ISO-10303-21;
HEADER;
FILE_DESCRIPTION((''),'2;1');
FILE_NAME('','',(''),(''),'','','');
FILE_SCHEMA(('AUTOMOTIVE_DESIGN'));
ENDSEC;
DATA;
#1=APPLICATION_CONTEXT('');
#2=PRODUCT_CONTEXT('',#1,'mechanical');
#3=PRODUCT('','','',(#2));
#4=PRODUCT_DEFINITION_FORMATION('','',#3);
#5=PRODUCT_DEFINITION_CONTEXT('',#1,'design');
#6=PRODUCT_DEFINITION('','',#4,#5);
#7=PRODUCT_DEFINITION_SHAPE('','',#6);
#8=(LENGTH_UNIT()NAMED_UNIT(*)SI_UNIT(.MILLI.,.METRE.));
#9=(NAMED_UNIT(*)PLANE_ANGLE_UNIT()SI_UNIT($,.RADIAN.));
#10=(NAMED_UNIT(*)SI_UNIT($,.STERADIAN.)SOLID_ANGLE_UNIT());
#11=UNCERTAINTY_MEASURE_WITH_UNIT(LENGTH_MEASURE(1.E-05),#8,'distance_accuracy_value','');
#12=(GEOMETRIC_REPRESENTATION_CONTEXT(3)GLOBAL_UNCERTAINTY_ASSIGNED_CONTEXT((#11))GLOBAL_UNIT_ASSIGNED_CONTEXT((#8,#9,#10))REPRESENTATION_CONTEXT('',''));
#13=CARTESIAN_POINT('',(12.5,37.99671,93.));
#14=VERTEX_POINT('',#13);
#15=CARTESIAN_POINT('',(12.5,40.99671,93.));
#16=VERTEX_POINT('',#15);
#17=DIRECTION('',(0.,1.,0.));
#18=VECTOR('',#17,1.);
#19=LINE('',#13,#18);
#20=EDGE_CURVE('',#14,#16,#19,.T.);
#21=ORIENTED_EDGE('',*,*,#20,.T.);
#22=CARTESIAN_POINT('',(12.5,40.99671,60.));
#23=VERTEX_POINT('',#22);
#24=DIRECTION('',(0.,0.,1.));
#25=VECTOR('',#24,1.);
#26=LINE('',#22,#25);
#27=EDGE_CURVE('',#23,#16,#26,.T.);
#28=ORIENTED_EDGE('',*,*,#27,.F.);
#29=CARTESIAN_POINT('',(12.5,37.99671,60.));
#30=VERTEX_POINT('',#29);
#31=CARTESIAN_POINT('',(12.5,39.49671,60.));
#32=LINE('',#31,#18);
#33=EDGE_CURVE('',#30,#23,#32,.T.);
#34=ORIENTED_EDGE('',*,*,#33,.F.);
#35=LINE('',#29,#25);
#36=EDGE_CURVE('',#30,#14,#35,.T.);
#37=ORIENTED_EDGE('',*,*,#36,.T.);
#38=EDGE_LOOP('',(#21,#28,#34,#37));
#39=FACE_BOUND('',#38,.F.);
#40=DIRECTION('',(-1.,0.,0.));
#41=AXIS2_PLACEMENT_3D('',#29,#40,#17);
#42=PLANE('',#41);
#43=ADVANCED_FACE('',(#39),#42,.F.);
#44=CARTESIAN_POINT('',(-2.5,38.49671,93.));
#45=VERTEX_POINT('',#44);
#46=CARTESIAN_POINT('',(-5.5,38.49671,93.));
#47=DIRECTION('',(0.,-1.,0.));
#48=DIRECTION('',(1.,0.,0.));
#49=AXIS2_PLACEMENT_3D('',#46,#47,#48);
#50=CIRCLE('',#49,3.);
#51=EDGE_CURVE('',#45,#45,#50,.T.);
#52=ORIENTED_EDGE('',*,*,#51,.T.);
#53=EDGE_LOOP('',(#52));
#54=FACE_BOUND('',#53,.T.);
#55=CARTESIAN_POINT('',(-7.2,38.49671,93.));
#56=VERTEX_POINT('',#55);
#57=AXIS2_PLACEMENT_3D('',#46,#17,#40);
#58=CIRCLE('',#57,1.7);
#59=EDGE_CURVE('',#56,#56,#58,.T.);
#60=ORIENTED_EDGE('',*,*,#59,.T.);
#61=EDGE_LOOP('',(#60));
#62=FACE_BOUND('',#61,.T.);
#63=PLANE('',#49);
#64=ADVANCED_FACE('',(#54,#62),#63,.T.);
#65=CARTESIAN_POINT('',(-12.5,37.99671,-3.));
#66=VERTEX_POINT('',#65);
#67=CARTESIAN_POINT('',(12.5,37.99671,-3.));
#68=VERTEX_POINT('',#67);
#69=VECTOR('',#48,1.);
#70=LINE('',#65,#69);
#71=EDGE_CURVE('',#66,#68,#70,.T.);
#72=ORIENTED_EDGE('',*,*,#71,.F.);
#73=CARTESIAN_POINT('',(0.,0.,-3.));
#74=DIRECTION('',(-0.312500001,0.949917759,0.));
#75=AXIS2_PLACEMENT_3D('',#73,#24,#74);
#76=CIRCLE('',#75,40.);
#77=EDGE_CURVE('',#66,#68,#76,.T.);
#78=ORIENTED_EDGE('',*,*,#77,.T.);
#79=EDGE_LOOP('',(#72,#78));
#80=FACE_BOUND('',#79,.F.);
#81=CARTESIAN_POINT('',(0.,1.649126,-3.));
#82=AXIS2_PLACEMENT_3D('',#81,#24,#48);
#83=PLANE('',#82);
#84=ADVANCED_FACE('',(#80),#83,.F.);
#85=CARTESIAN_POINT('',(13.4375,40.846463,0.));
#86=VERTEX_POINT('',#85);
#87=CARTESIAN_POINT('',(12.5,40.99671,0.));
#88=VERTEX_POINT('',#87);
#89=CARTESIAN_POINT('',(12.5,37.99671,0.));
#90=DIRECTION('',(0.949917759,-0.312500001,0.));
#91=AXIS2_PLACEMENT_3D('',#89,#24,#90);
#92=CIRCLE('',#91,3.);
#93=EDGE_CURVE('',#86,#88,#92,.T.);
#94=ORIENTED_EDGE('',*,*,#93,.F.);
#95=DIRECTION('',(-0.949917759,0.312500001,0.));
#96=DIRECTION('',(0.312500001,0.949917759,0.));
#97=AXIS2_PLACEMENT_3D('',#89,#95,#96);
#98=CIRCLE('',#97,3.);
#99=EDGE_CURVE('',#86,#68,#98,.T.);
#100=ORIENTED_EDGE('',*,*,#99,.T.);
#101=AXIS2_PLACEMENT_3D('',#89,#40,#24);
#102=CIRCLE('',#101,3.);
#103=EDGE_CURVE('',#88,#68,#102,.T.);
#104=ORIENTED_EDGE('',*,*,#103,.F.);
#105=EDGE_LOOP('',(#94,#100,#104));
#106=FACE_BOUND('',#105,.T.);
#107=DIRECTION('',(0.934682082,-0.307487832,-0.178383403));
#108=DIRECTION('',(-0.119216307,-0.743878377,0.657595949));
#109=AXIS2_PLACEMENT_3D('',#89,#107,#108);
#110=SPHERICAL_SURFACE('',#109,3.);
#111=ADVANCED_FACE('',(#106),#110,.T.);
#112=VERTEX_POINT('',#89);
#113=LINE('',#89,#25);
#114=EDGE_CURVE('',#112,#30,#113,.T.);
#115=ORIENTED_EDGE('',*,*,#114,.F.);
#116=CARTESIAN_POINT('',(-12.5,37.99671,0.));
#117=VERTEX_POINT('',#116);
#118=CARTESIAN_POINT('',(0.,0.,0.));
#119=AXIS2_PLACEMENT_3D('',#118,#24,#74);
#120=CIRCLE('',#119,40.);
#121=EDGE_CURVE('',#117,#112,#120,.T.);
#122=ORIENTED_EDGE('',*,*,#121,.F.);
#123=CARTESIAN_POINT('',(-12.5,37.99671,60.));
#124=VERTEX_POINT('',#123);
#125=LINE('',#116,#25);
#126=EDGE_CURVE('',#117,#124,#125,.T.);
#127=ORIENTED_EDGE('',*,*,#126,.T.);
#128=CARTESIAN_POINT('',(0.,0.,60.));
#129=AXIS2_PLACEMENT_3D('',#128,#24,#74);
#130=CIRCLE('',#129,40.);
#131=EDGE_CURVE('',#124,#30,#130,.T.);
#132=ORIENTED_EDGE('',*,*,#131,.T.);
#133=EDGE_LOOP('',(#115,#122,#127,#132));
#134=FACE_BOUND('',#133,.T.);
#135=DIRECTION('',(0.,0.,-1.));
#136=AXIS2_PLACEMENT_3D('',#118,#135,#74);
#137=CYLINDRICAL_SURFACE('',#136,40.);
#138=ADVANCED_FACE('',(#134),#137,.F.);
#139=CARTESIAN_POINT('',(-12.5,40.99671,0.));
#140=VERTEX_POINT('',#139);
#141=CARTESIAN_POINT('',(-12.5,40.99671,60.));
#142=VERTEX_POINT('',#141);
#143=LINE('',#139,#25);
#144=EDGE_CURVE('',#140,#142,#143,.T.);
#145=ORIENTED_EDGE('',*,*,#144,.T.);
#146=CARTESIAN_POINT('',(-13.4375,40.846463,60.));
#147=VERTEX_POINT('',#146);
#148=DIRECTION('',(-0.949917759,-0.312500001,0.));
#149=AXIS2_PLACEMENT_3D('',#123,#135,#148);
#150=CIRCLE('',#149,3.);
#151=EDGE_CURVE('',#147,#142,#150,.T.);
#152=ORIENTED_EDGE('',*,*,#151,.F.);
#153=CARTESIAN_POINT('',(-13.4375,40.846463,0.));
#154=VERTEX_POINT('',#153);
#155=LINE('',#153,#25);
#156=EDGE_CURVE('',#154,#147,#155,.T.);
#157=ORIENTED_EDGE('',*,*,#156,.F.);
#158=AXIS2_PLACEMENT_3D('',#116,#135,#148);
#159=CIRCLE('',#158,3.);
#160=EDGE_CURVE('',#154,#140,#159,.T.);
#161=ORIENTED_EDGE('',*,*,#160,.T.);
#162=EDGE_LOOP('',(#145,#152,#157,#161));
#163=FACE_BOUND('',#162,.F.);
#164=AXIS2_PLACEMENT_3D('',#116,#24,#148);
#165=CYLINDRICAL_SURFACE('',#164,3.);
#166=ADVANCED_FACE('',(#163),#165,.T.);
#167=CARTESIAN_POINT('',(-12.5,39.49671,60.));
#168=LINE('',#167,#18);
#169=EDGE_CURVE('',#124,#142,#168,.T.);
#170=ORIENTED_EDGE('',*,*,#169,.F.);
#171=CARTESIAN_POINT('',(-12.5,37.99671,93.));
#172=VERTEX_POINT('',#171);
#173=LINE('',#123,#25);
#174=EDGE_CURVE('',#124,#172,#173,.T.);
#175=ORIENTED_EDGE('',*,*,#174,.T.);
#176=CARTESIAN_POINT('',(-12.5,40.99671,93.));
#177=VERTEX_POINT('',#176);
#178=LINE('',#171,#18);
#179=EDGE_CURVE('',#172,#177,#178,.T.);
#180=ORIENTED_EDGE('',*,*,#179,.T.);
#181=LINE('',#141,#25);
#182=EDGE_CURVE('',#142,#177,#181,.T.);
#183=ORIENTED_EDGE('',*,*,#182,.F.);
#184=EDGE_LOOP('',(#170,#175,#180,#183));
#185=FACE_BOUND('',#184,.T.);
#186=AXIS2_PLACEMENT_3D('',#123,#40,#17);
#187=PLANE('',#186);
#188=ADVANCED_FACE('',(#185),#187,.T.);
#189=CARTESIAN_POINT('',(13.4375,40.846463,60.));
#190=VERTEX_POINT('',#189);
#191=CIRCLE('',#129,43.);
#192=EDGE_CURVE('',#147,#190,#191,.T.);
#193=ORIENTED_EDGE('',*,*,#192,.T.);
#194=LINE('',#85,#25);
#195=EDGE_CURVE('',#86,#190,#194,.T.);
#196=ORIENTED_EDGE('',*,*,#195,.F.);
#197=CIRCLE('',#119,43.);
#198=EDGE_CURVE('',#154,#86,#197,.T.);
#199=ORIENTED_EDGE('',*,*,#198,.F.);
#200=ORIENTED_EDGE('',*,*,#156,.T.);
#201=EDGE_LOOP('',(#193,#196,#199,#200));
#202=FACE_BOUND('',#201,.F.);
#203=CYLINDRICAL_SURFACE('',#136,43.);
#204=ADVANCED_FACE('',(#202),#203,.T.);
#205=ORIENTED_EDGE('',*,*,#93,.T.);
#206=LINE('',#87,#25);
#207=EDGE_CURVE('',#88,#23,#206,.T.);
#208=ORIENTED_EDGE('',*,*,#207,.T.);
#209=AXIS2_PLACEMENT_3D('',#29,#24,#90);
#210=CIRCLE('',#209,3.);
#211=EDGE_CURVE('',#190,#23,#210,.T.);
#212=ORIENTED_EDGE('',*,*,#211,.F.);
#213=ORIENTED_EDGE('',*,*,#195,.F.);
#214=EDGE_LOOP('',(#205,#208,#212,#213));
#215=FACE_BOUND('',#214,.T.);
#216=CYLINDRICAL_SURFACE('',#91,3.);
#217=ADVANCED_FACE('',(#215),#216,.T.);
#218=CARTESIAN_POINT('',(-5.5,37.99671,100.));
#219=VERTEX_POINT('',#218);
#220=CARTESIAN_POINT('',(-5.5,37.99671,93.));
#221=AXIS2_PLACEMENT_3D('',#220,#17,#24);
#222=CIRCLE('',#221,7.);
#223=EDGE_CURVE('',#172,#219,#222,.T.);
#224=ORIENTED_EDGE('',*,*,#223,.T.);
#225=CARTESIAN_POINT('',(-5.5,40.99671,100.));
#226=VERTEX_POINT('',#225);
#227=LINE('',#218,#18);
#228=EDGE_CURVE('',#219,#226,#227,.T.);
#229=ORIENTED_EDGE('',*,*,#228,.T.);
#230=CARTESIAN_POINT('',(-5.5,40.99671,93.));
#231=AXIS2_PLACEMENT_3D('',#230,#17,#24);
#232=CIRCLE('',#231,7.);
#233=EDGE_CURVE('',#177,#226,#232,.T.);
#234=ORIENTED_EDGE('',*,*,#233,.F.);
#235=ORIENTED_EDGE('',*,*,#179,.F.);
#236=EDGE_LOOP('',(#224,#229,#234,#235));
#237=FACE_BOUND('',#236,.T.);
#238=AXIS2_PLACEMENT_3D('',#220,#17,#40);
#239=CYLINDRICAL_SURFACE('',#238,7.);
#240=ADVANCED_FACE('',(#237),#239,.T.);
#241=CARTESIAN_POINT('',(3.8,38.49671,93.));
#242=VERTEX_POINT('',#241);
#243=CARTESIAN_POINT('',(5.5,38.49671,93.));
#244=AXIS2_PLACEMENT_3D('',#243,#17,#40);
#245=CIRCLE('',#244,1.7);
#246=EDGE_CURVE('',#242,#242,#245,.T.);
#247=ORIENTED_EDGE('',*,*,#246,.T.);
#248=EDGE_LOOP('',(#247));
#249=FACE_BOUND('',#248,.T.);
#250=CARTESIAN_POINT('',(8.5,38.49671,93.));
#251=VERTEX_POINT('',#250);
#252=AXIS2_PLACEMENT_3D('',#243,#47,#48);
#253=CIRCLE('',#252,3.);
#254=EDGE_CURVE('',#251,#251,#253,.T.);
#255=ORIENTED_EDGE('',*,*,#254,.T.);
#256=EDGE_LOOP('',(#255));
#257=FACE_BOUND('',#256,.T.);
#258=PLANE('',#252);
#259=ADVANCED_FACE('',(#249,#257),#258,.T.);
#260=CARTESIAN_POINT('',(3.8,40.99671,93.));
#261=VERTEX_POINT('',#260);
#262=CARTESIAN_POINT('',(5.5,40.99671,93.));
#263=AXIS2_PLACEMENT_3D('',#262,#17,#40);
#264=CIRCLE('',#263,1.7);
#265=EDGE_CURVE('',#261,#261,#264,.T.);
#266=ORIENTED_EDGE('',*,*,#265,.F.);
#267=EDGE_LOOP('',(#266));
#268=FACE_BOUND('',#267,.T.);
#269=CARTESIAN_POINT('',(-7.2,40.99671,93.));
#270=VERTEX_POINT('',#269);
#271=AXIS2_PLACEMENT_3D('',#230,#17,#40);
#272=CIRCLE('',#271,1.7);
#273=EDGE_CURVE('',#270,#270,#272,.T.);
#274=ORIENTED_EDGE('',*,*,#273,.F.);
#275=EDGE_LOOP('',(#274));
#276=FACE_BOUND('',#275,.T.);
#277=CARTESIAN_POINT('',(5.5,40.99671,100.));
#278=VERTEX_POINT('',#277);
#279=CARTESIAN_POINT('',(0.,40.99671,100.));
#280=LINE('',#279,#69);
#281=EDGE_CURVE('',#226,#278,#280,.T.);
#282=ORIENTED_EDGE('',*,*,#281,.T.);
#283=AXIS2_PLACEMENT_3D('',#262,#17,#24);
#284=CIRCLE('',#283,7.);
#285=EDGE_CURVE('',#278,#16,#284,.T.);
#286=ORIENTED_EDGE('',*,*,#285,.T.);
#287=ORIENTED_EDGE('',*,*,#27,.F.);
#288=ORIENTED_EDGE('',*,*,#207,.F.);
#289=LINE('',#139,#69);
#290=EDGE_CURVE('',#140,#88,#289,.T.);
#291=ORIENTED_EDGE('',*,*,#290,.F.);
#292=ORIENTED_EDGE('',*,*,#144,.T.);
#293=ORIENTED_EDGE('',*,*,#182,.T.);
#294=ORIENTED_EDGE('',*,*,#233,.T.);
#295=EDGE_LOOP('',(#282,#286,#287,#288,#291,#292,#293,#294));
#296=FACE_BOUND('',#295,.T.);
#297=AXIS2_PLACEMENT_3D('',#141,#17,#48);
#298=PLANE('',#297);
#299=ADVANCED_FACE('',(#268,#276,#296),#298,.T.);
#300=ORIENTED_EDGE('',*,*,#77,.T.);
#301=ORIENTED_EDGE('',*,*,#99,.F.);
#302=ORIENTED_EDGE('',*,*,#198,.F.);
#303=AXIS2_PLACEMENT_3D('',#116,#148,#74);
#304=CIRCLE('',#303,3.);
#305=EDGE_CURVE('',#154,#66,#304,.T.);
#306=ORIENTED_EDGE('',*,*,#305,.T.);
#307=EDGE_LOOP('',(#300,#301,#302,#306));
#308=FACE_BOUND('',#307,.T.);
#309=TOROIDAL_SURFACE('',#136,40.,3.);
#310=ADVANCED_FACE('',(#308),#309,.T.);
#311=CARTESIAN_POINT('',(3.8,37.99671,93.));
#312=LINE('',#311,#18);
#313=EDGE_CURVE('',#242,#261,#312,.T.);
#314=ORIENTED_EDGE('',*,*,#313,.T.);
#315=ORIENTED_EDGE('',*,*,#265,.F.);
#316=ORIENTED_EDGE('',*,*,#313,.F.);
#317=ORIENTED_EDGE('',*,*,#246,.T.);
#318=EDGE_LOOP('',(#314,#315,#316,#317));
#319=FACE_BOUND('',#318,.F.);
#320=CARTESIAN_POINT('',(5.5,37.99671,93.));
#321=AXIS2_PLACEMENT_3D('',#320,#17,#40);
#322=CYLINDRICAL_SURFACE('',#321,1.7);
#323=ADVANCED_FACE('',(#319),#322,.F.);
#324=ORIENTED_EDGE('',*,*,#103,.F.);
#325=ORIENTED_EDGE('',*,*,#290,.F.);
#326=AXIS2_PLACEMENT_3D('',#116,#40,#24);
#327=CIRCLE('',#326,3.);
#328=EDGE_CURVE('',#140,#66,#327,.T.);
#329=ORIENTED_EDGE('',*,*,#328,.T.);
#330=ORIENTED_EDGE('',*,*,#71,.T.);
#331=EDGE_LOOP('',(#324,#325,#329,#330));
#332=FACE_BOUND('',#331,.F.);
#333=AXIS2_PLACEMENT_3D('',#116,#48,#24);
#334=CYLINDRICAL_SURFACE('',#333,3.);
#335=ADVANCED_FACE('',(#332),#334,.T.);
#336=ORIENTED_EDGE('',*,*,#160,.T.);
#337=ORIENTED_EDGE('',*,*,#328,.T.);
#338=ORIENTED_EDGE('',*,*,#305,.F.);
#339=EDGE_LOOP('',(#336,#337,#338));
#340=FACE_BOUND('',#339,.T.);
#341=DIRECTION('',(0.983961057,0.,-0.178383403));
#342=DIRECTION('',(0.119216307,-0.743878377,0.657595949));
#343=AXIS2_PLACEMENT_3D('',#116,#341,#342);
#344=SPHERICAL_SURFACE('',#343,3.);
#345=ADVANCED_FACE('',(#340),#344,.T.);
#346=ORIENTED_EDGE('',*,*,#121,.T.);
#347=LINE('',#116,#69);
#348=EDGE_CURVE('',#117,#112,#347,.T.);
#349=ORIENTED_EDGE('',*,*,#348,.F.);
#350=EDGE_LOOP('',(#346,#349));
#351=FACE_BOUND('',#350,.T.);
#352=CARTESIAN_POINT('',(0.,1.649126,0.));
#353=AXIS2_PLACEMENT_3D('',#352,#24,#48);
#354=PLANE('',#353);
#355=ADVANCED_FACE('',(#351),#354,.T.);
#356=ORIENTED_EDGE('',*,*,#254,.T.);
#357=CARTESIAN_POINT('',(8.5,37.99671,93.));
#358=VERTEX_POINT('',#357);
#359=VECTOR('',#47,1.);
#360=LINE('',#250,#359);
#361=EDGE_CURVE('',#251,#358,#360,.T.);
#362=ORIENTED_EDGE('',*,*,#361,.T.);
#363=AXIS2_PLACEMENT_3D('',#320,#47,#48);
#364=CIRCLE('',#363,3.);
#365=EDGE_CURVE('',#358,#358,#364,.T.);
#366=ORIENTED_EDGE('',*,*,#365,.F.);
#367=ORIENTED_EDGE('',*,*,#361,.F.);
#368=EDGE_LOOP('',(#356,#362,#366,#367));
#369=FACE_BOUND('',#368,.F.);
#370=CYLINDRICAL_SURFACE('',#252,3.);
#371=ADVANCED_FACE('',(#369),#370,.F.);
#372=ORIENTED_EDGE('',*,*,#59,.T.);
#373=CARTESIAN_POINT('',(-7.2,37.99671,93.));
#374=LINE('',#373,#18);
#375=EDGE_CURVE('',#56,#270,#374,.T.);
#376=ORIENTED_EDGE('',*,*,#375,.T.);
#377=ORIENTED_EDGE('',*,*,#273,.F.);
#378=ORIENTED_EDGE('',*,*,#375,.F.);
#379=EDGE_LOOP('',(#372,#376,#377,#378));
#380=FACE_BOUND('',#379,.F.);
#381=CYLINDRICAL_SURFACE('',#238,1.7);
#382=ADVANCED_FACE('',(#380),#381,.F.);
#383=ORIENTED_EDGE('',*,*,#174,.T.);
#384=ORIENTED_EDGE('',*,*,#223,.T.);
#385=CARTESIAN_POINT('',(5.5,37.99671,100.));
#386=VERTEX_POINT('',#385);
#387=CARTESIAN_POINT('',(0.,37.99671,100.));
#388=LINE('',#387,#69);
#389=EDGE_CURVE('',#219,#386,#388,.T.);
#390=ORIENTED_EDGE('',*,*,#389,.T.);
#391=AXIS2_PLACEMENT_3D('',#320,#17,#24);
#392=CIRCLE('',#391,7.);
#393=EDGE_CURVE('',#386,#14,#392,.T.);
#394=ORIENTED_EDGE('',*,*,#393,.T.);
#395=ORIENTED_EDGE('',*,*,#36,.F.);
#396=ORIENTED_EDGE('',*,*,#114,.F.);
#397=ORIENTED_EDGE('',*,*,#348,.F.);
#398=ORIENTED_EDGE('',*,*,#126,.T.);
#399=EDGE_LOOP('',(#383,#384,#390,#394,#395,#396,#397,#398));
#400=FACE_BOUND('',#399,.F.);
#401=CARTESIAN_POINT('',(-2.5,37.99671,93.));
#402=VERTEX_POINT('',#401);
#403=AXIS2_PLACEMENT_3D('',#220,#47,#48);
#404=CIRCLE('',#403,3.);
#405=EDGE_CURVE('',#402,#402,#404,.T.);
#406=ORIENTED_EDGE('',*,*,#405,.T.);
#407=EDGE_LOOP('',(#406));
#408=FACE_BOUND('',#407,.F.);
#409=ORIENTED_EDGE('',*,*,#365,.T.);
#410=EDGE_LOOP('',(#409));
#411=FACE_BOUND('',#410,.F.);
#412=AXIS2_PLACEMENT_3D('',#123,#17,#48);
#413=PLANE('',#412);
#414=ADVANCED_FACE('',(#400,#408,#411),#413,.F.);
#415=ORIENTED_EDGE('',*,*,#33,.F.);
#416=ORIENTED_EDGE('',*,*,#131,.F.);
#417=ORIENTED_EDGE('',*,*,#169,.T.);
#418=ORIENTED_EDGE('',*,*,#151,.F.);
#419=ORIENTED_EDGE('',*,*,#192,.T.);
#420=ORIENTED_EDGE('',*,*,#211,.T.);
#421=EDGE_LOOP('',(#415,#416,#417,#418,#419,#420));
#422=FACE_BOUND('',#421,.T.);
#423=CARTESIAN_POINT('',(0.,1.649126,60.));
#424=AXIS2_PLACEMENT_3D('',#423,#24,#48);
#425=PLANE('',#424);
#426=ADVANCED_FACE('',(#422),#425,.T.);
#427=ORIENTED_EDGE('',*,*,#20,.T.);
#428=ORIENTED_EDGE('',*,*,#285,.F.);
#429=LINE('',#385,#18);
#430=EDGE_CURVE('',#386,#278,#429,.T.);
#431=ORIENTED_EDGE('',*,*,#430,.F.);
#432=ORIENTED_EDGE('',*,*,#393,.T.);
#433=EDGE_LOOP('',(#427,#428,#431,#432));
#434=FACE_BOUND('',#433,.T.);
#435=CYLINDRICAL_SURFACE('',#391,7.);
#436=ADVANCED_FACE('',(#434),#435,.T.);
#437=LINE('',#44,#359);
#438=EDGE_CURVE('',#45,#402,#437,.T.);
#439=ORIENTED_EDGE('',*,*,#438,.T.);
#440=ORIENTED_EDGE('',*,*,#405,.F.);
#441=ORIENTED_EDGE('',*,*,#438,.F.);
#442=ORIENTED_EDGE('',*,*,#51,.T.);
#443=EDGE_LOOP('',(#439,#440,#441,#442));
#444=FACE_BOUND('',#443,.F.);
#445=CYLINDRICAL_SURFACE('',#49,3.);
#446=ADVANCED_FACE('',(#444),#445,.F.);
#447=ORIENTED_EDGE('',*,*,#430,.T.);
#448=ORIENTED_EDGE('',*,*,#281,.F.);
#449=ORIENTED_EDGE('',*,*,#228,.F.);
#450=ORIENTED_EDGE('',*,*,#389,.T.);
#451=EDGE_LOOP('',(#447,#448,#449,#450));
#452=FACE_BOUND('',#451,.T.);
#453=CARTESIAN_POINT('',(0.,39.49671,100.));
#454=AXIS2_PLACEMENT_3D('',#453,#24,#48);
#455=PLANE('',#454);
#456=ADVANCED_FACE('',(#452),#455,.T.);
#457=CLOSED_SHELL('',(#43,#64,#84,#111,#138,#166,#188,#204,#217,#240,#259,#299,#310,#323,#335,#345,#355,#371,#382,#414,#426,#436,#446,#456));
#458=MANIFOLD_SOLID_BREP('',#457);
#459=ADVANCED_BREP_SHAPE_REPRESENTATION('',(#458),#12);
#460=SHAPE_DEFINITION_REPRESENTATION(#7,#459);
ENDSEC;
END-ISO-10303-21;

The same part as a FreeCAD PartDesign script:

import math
import FreeCAD as App
import Part
import Sketcher

V = App.Vector
Q = App.Units.Quantity


def edges_at(feature, points):
    """Names of the edges that pass closest to the given points."""
    edges = feature.Shape.Edges
    near = lambda p: min(range(len(edges)), key=lambda i: edges[i].distToShape(Part.Vertex(*p))[0])
    return sorted({f"Edge{near(p) + 1}" for p in points})


def faces_at(feature, points):
    """Names of the faces that lie closest to the given points."""
    faces = feature.Shape.Faces
    near = lambda p: min(range(len(faces)), key=lambda i: faces[i].distToShape(Part.Vertex(*p))[0])
    return sorted({f"Face{near(p) + 1}" for p in points})


def add_polygon(sketch, points):
    """Adds a closed chain of lines whose ends are joined by coincident constraints."""
    first, n = sketch.GeometryCount, len(points)
    for a, b in zip(points, points[1:] + points[:1]):
        sketch.addGeometry(Part.LineSegment(App.Vector(*a, 0), App.Vector(*b, 0)), False)
    for i in range(n):
        sketch.addConstraint(Sketcher.Constraint("Coincident", first + i, 2, first + (i + 1) % n, 1))

doc = App.newDocument("Part")
params = doc.addObject("Spreadsheet::Sheet", "Params")
for row, (alias, value) in enumerate([
    ("sketch1_radius", "40 mm"),
    ("sketch1_width", "25 mm"),
    ("pad1_length", "60 mm"),
    ("thickness_wall", "3 mm"),
    ("sketch2_width", "25 mm"),
    ("sketch2_height", "3 mm"),
    ("pad2_length", "40 mm"),
    ("sketch3_diameter", "3.4 mm"),
    ("hole_diameter", "3.4 mm"),
    ("hole_depth", "12 mm"),
    ("hole_cbore_diameter", "6 mm"),
    ("hole_cbore_depth", "0.5 mm"),
    ("fillet_radius", "7 mm"),
], start=1):
    params.set(f"A{row}", alias)
    params.set(f"B{row}", "=" + value)
    params.setAlias(f"B{row}", alias)

body = doc.addObject("PartDesign::Body", "Body")

sketch1 = body.newObject("Sketcher::SketchObject", "Sketch")
sketch1.AttachmentSupport = (doc.getObject("XY_Plane"), [""])
sketch1.MapMode = "FlatFace"
sketch1.addGeometry([
    Part.ArcOfCircle(Part.Circle(V(0, 0, 0), V(0, 0, 1), 40), math.radians(108.209957), math.radians(431.790043)),
    Part.LineSegment(V(12.5, 37.99671, 0), V(-12.5, 37.99671, 0)),
], False)
sketch1.addConstraint([
    Sketcher.Constraint("Coincident", 0, 1, 1, 2),
    Sketcher.Constraint("Coincident", 1, 1, 0, 2),
    Sketcher.Constraint("Horizontal", 1),
    Sketcher.Constraint("Coincident", 0, 3, -1, 1),
    Sketcher.Constraint("Radius", 0, Q("40 mm")),
    Sketcher.Constraint("DistanceX", 1, 2, 1, 1, Q("25 mm")),
])
sketch1.setExpression("Constraints[4]", "Params.sketch1_radius")
sketch1.setExpression("Constraints[5]", "Params.sketch1_width")
pad1 = body.newObject("PartDesign::Pad", "Pad")
pad1.Profile = sketch1
pad1.setExpression("Length", "Params.pad1_length")
doc.recompute()

thickness = body.newObject("PartDesign::Thickness", "Thickness")
thickness.Base = (pad1, faces_at(pad1, [(0, -1.002, 60)]))
thickness.setExpression("Value", "Params.thickness_wall")
thickness.Reversed = False
thickness.Join = "Arc"

sketch2 = body.newObject("Sketcher::SketchObject", "Sketch001")
sketch2.AttachmentSupport = (doc.getObject("XY_Plane"), [""])
sketch2.MapMode = "FlatFace"
sketch2.AttachmentOffset = App.Placement(V(0, 0, 60), App.Rotation())
add_polygon(sketch2, [(-12.5, 40.99671), (-12.5, 37.99671), (12.5, 37.99671), (12.5, 40.99671)])
sketch2.addConstraint([
    Sketcher.Constraint("Vertical", 0),
    Sketcher.Constraint("Horizontal", 1),
    Sketcher.Constraint("Vertical", 2),
    Sketcher.Constraint("Horizontal", 3),
    Sketcher.Constraint("DistanceX", 1, 1, 1, 2, Q("25 mm")),
    Sketcher.Constraint("DistanceY", 0, 2, 0, 1, Q("3 mm")),
    Sketcher.Constraint("DistanceX", 0, 2, -1, 1, Q("12.5 mm")),
    Sketcher.Constraint("DistanceY", -1, 1, 0, 2, Q("37.99671 mm")),
])
sketch2.setExpression("Constraints[8]", "Params.sketch2_width")
sketch2.setExpression("Constraints[9]", "Params.sketch2_height")
pad2 = body.newObject("PartDesign::Pad", "Pad001")
pad2.Profile = sketch2
pad2.setExpression("Length", "Params.pad2_length")

sketch3 = body.newObject("Sketcher::SketchObject", "Sketch002")
sketch3.AttachmentSupport = (doc.getObject("XZ_Plane"), [""])
sketch3.MapMode = "FlatFace"
sketch3.AttachmentOffset = App.Placement(V(0, 0, -37.99671), App.Rotation())
sketch3.addGeometry([
    Part.Circle(V(-5.5, 93, 0), V(0, 0, 1), 1.7),
    Part.Circle(V(5.5, 93, 0), V(0, 0, 1), 1.7),
], False)
sketch3.addConstraint([
    Sketcher.Constraint("Equal", 0, 1),
    Sketcher.Constraint("Symmetric", 0, 3, 1, 3, -2),
    Sketcher.Constraint("Diameter", 0, Q("3.4 mm")),
    Sketcher.Constraint("DistanceY", -1, 1, 0, 3, Q("93 mm")),
    Sketcher.Constraint("DistanceX", 0, 3, 1, 3, Q("11 mm")),
])
sketch3.setExpression("Constraints[2]", "Params.sketch3_diameter")
doc.recompute()
hole = body.newObject("PartDesign::Hole", "Hole")
hole.Profile = sketch3
hole.ThreadType = "None"
hole.setExpression("Diameter", "Params.hole_diameter")
hole.DepthType = "Dimension"
hole.setExpression("Depth", "Params.hole_depth")
hole.DrillPoint = "Flat"
hole.HoleCutType = "Counterbore"
hole.setExpression("HoleCutDiameter", "Params.hole_cbore_diameter")
hole.setExpression("HoleCutDepth", "Params.hole_cbore_depth")
doc.recompute()

fillet = body.newObject("PartDesign::Fillet", "Fillet")
fillet.Base = (hole, edges_at(hole, [(12.5, 39.497, 100), (-12.5, 39.497, 100)]))
fillet.setExpression("Radius", "Params.fillet_radius")

doc.recompute()
